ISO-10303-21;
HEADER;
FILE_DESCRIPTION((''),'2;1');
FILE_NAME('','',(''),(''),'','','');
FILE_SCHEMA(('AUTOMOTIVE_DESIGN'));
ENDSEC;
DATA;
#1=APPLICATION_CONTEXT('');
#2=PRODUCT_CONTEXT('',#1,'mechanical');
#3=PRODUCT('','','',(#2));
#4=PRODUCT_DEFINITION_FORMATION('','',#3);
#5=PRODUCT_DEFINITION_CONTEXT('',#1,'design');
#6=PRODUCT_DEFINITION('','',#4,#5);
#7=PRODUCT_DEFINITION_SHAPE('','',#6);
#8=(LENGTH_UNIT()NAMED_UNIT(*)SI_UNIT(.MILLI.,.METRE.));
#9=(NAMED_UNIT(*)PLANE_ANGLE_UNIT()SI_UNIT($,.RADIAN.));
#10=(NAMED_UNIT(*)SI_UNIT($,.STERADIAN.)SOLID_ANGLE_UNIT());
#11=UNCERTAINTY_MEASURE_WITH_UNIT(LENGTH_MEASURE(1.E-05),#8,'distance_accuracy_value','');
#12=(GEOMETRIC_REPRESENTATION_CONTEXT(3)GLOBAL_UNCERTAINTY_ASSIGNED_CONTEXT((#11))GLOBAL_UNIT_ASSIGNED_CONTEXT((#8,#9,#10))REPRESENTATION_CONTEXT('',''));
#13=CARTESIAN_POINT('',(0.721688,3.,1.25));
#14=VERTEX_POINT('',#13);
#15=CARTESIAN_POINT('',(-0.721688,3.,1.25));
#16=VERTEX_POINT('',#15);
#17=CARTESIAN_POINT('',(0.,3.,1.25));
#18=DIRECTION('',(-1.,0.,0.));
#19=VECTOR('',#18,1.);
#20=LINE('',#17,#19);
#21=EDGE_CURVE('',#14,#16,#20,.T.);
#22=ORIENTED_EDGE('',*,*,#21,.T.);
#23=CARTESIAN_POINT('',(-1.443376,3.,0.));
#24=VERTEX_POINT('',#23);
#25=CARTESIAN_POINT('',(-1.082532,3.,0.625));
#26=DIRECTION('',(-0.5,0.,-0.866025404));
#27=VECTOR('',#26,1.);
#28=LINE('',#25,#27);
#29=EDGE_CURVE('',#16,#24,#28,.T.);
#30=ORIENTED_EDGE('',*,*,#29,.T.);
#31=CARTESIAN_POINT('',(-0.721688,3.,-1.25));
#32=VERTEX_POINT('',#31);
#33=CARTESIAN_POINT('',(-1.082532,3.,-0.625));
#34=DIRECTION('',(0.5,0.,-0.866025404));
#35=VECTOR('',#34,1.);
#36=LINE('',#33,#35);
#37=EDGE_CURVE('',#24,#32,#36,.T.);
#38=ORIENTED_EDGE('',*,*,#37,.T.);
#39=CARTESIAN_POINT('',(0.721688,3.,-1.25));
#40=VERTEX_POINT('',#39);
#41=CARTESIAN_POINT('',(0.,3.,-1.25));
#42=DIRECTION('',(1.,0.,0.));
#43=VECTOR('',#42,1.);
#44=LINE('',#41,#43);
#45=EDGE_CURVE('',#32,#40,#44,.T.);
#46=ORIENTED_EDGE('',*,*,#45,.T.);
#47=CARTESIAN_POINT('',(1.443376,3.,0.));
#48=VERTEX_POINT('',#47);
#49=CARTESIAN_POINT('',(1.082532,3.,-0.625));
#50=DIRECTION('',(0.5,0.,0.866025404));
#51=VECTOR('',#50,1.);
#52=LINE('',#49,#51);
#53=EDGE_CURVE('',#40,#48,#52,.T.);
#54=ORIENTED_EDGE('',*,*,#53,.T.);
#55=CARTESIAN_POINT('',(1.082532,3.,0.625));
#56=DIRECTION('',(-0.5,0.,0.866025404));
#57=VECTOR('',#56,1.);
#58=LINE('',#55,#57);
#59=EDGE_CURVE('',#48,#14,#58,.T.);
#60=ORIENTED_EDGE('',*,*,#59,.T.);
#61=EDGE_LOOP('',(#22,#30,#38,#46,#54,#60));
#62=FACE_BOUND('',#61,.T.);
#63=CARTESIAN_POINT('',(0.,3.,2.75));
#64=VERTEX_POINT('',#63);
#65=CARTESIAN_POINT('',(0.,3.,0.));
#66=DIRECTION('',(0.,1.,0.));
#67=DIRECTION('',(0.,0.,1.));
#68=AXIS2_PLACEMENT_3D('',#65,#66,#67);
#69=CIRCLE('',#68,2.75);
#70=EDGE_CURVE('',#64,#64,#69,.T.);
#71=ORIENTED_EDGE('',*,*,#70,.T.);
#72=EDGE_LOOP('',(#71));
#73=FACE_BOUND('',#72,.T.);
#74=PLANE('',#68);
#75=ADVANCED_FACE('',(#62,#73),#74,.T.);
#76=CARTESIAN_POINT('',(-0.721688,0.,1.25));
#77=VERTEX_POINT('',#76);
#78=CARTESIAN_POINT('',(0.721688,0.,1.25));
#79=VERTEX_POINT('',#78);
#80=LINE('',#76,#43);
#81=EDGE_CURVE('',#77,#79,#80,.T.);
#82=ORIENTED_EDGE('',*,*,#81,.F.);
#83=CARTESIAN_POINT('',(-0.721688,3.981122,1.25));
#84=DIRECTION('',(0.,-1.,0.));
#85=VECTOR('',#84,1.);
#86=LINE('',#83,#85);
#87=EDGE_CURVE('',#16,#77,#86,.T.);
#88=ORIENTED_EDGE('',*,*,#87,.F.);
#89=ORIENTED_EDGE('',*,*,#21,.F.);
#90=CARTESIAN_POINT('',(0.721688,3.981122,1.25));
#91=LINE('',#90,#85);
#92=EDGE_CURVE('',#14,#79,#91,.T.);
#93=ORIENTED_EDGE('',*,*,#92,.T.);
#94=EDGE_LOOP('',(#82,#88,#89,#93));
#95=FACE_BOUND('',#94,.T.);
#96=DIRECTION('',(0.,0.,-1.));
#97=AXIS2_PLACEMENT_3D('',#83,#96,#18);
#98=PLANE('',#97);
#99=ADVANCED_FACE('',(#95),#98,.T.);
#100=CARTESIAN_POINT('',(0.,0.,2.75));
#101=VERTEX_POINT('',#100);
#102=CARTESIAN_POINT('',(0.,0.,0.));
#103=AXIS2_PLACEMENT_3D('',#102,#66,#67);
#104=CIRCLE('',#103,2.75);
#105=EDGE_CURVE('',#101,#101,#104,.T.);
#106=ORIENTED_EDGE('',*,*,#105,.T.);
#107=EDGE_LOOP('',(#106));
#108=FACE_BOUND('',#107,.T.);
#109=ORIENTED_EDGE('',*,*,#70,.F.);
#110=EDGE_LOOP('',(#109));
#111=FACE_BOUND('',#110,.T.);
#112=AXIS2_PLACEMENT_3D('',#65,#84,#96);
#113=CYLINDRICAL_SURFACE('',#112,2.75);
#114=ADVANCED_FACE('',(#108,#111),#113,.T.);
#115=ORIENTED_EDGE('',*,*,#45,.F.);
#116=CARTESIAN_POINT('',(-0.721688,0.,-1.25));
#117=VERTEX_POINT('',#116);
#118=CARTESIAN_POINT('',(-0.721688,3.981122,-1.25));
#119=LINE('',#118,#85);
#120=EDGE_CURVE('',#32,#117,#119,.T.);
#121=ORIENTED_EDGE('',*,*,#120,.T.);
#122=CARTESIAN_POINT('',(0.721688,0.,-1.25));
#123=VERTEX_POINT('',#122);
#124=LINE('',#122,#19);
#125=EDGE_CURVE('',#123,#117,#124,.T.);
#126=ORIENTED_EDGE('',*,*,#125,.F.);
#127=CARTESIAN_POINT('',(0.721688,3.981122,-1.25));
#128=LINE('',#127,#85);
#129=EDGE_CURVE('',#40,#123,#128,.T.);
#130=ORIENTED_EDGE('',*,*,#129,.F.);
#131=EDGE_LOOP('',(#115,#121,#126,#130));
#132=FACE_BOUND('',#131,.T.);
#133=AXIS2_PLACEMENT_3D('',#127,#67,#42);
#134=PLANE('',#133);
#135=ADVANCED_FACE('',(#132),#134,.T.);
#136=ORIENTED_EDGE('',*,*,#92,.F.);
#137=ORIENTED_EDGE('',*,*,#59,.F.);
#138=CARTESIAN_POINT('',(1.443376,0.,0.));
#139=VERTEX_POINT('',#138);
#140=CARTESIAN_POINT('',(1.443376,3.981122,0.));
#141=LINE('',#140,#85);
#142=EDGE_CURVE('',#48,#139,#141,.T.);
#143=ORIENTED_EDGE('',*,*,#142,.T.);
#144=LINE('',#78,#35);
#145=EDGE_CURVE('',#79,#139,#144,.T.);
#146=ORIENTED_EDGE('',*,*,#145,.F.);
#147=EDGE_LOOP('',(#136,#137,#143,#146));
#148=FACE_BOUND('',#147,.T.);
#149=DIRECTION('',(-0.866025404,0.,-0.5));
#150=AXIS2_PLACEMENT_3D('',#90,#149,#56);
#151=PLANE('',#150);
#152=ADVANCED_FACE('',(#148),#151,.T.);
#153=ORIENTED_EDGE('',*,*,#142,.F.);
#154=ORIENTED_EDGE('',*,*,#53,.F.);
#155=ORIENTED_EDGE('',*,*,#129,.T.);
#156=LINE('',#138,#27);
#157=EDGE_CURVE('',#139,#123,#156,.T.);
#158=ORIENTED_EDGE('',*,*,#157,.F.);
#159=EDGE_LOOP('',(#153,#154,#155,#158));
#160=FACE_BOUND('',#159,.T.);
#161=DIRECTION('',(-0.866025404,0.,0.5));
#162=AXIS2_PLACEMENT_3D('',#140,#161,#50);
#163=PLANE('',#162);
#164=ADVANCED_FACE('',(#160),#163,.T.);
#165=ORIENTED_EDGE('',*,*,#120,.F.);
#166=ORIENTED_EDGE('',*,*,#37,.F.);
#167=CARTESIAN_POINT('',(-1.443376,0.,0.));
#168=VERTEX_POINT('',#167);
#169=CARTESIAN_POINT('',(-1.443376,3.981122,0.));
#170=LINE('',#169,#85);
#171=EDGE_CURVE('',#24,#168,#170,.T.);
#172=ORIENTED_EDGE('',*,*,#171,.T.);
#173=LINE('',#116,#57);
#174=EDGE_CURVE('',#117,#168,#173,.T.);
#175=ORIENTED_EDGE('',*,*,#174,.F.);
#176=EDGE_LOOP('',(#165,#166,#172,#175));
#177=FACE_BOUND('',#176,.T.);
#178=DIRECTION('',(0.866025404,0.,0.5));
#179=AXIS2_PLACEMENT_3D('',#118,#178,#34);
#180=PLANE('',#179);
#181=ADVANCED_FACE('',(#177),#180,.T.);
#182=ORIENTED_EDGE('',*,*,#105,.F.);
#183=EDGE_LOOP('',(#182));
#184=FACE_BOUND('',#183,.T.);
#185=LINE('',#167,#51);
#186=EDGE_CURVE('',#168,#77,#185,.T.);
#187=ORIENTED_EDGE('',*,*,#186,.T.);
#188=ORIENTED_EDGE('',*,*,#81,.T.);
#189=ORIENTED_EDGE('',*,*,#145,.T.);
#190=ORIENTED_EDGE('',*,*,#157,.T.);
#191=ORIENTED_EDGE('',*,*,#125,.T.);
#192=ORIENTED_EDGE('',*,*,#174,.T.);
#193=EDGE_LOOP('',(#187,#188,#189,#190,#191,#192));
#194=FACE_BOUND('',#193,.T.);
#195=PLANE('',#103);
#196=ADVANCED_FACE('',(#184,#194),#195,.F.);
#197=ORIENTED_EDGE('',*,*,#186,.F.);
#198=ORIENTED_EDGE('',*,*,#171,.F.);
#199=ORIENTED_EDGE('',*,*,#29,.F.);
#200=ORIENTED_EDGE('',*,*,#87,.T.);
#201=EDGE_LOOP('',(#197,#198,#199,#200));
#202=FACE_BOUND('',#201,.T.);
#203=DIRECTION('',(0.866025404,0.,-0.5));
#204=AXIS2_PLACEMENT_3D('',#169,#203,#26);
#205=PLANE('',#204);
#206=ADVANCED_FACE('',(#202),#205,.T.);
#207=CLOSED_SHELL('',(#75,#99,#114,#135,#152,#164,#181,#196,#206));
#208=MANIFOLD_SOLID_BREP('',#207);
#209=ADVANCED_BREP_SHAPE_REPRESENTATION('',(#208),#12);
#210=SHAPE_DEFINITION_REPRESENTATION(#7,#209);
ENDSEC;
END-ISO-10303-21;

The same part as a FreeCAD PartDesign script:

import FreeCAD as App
import Part
import Sketcher
from FreeCAD import Vector
Q = App.Units.Quantity

doc = App.newDocument("Part")
body = doc.addObject("PartDesign::Body", "Body")

sketch1 = body.newObject("Sketcher::SketchObject", "Sketch")
sketch1.AttachmentSupport = (doc.getObject("XZ_Plane"), [""])
sketch1.MapMode = "FlatFace"
sketch1.addGeometry(Part.Circle(Vector(0, 0, 0), Vector(0, 0, 1), 2.8), False)
sketch1.addConstraint([
    Sketcher.Constraint("Coincident", 0, 3, -1, 1),
    Sketcher.Constraint("Diameter", 0, Q("5.5 mm")),
])
pad1 = body.newObject("PartDesign::Pad", "Pad")
pad1.Profile = sketch1
pad1.Length = 3
pad1.Reversed = True

sketch2 = body.newObject("Sketcher::SketchObject", "Sketch001")
sketch2.AttachmentSupport = (doc.getObject("XZ_Plane"), [""])
sketch2.MapMode = "FlatFace"
sketch2.addGeometry([
    Part.LineSegment(Vector(0.7, -1.2, 0), Vector(-0.7, -1.2, 0)),
    Part.LineSegment(Vector(-0.7, -1.2, 0), Vector(-1.4, 0, 0)),
    Part.LineSegment(Vector(-1.4, 0, 0), Vector(-0.7, 1.2, 0)),
    Part.LineSegment(Vector(-0.7, 1.2, 0), Vector(0.7, 1.2, 0)),
    Part.LineSegment(Vector(0.7, 1.2, 0), Vector(1.4, 0, 0)),
    Part.LineSegment(Vector(1.4, 0, 0), Vector(0.7, -1.2, 0)),
], False)
sketch2.addConstraint([
    Sketcher.Constraint("Coincident", 0, 2, 1, 1),
    Sketcher.Constraint("Coincident", 1, 2, 2, 1),
    Sketcher.Constraint("Coincident", 2, 2, 3, 1),
    Sketcher.Constraint("Coincident", 3, 2, 4, 1),
    Sketcher.Constraint("Coincident", 4, 2, 5, 1),
    Sketcher.Constraint("Coincident", 5, 2, 0, 1),
    Sketcher.Constraint("Horizontal", 0),
    Sketcher.Constraint("Horizontal", 3),
    Sketcher.Constraint("Symmetric", 0, 2, 3, 2, -1, 1),
    Sketcher.Constraint("Symmetric", 1, 2, 4, 2, -1, 1),
    Sketcher.Constraint("PointOnObject", 1, 2, -1),
    Sketcher.Constraint("Parallel", 2, 5),
    Sketcher.Constraint("Vertical", 0, 2, 2, 2),
    Sketcher.Constraint("Angle", 1, Q("120 deg")),
    Sketcher.Constraint("DistanceY", 0, 2, 2, 2, Q("2.5 mm")),
    Sketcher.Constraint("DistanceX", 0, 2, 0, 1, Q("1.443376 mm")),
])
pad2 = body.newObject("PartDesign::Pad", "Pad001")
pad2.Profile = sketch2
pad2.Length = 3
pad2.Reversed = True

sketch3 = body.newObject("Sketcher::SketchObject", "Sketch002")
sketch3.AttachmentSupport = (doc.getObject("XZ_Plane"), [""])
sketch3.MapMode = "FlatFace"
sketch3.addGeometry([
    Part.LineSegment(Vector(0.7, -1.2, 0), Vector(-0.7, -1.2, 0)),
    Part.LineSegment(Vector(-0.7, -1.2, 0), Vector(-1.4, 0, 0)),
    Part.LineSegment(Vector(-1.4, 0, 0), Vector(-0.7, 1.2, 0)),
    Part.LineSegment(Vector(-0.7, 1.2, 0), Vector(0.7, 1.2, 0)),
    Part.LineSegment(Vector(0.7, 1.2, 0), Vector(1.4, 0, 0)),
    Part.LineSegment(Vector(1.4, 0, 0), Vector(0.7, -1.2, 0)),
], False)
sketch3.addConstraint([
    Sketcher.Constraint("Coincident", 0, 2, 1, 1),
    Sketcher.Constraint("Coincident", 1, 2, 2, 1),
    Sketcher.Constraint("Coincident", 2, 2, 3, 1),
    Sketcher.Constraint("Coincident", 3, 2, 4, 1),
    Sketcher.Constraint("Coincident", 4, 2, 5, 1),
    Sketcher.Constraint("Coincident", 5, 2, 0, 1),
    Sketcher.Constraint("Horizontal", 0),
    Sketcher.Constraint("Horizontal", 3),
    Sketcher.Constraint("Symmetric", 0, 2, 3, 2, -1, 1),
    Sketcher.Constraint("Symmetric", 1, 2, 4, 2, -1, 1),
    Sketcher.Constraint("PointOnObject", 1, 2, -1),
    Sketcher.Constraint("Parallel", 2, 5),
    Sketcher.Constraint("Vertical", 0, 2, 2, 2),
    Sketcher.Constraint("Angle", 1, Q("120 deg")),
    Sketcher.Constraint("DistanceY", 0, 2, 2, 2, Q("2.5 mm")),
    Sketcher.Constraint("DistanceX", 0, 2, 0, 1, Q("1.443376 mm")),
])
pocket1 = body.newObject("PartDesign::Pocket", "Pocket")
pocket1.Profile = sketch3
pocket1.Length = 3.981122

doc.recompute()
